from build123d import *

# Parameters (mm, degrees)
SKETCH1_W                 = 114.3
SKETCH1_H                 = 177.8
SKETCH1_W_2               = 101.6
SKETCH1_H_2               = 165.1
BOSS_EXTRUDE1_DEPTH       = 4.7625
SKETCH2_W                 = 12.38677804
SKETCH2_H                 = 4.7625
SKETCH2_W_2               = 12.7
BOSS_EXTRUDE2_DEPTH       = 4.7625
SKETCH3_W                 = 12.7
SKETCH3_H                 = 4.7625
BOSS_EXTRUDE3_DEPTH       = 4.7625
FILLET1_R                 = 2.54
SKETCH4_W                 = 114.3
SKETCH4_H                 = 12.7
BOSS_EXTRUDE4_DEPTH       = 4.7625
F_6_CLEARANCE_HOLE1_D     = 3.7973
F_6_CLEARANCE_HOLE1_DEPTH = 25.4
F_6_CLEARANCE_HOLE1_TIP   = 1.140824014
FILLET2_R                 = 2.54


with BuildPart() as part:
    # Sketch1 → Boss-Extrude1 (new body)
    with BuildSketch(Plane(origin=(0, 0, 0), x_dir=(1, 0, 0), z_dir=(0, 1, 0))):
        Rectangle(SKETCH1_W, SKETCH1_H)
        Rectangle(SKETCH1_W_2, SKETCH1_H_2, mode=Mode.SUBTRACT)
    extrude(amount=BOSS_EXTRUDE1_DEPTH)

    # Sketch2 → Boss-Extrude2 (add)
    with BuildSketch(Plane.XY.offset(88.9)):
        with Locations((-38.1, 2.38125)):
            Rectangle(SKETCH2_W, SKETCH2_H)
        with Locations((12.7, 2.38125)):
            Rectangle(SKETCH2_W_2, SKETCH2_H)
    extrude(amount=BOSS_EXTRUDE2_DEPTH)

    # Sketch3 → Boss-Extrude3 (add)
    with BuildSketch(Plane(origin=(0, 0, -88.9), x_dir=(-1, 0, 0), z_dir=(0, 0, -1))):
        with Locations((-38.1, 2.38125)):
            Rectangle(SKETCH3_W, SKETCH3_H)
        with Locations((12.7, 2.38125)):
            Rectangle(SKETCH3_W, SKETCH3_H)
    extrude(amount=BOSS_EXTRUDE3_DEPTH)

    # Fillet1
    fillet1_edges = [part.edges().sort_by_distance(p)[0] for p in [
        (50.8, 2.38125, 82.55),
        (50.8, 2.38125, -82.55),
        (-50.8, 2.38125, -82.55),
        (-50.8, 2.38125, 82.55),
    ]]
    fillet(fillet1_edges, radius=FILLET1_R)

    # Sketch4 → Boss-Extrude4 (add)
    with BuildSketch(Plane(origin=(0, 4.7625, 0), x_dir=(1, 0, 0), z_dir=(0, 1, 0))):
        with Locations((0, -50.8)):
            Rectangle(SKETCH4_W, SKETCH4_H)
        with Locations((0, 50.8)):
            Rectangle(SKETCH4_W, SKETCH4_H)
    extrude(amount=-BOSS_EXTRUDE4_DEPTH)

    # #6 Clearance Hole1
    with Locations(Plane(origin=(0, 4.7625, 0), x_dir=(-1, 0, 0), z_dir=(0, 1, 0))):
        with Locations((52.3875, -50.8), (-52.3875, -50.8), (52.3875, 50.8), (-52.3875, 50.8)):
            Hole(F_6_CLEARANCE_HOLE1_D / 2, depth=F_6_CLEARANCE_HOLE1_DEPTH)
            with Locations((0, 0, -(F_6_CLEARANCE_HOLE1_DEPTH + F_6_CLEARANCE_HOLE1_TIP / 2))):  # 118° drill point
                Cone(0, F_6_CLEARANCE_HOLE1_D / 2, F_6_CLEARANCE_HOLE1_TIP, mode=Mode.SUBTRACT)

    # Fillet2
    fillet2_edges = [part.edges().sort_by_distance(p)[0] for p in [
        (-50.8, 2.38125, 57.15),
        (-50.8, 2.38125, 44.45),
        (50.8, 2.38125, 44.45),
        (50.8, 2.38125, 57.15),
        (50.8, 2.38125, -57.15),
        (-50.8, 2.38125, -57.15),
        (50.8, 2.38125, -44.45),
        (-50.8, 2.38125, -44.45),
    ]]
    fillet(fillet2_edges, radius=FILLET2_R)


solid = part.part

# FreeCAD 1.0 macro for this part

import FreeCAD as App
import Part
import Sketcher
Q = App.Units.Quantity


def edges_at(feature, points):
    """Names of the edges that pass closest to the given points."""
    edges = feature.Shape.Edges
    near = lambda p: min(range(len(edges)), key=lambda i: edges[i].distToShape(Part.Vertex(*p))[0])
    return sorted({f"Edge{near(p) + 1}" for p in points})

doc = App.newDocument("Part")
body = doc.addObject("PartDesign::Body", "Body")

# Sketch on XZ plane
sketch1 = doc.addObject("Sketcher::SketchObject", "Sketch")
body.addObject(sketch1)
sketch1.AttachmentSupport = (doc.XZ_Plane, [""])
sketch1.MapMode = "FlatFace"
sketch1.addGeometry(Part.LineSegment(App.Vector(-57, -89, 0), App.Vector(-57, 89, 0)), False)
sketch1.addGeometry(Part.LineSegment(App.Vector(-57, 89, 0), App.Vector(57, 89, 0)), False)
sketch1.addGeometry(Part.LineSegment(App.Vector(57, 89, 0), App.Vector(57, -89, 0)), False)
sketch1.addGeometry(Part.LineSegment(App.Vector(57, -89, 0), App.Vector(-57, -89, 0)), False)
sketch1.addGeometry(Part.LineSegment(App.Vector(51, 83, 0), App.Vector(-51, 83, 0)), False)
sketch1.addGeometry(Part.LineSegment(App.Vector(-51, 83, 0), App.Vector(-51, -83, 0)), False)
sketch1.addGeometry(Part.LineSegment(App.Vector(-51, -83, 0), App.Vector(51, -83, 0)), False)
sketch1.addGeometry(Part.LineSegment(App.Vector(51, -83, 0), App.Vector(51, 83, 0)), False)
sketch1.addConstraint(Sketcher.Constraint("Coincident", 0, 2, 1, 1))
sketch1.addConstraint(Sketcher.Constraint("Coincident", 1, 2, 2, 1))
sketch1.addConstraint(Sketcher.Constraint("Coincident", 2, 2, 3, 1))
sketch1.addConstraint(Sketcher.Constraint("Coincident", 3, 2, 0, 1))
sketch1.addConstraint(Sketcher.Constraint("Coincident", 4, 2, 5, 1))
sketch1.addConstraint(Sketcher.Constraint("Coincident", 5, 2, 6, 1))
sketch1.addConstraint(Sketcher.Constraint("Coincident", 6, 2, 7, 1))
sketch1.addConstraint(Sketcher.Constraint("Coincident", 7, 2, 4, 1))
sketch1.addConstraint(Sketcher.Constraint("Vertical", 0))
sketch1.addConstraint(Sketcher.Constraint("Horizontal", 1))
sketch1.addConstraint(Sketcher.Constraint("Vertical", 2))
sketch1.addConstraint(Sketcher.Constraint("Horizontal", 3))
sketch1.addConstraint(Sketcher.Constraint("Horizontal", 4))
sketch1.addConstraint(Sketcher.Constraint("Vertical", 5))
sketch1.addConstraint(Sketcher.Constraint("Horizontal", 6))
sketch1.addConstraint(Sketcher.Constraint("Vertical", 7))
sketch1.addConstraint(Sketcher.Constraint("Symmetric", 0, 2, 2, 2, -1, 1))
sketch1.addConstraint(Sketcher.Constraint("Symmetric", 4, 2, 6, 2, -1, 1))
sketch1.addConstraint(Sketcher.Constraint("DistanceX", 4, 2, 4, 1, Q("4 in")))
sketch1.addConstraint(Sketcher.Constraint("DistanceY", 0, 1, 0, 2, Q("7 in")))
sketch1.addConstraint(Sketcher.Constraint("DistanceX", 1, 1, 1, 2, Q("4.5 in")))
sketch1.addConstraint(Sketcher.Constraint("DistanceY", 5, 2, 5, 1, Q("6.5 in")))
pad1 = doc.addObject("PartDesign::Pad", "Pad")
body.addObject(pad1)
pad1.Profile = sketch1
pad1.Length = Q("0.1875 in")
pad1.Reversed = True

# Sketch on XY plane
sketch2 = doc.addObject("Sketcher::SketchObject", "Sketch001")
body.addObject(sketch2)
sketch2.AttachmentSupport = (doc.XY_Plane, [""])
sketch2.MapMode = "FlatFace"
sketch2.AttachmentOffset = App.Placement(App.Vector(0, 0, 3.5 * 25.4), App.Rotation())
sketch2.addGeometry(Part.LineSegment(App.Vector(-44.3, 4.8, 0), App.Vector(-44.3, 0, 0)), False)
sketch2.addGeometry(Part.LineSegment(App.Vector(-44.3, 0, 0), App.Vector(-31.9, 0, 0)), False)
sketch2.addGeometry(Part.LineSegment(App.Vector(-31.9, 0, 0), App.Vector(-31.9, 4.8, 0)), False)
sketch2.addGeometry(Part.LineSegment(App.Vector(-31.9, 4.8, 0), App.Vector(-44.3, 4.8, 0)), False)
sketch2.addGeometry(Part.LineSegment(App.Vector(6.3, 4.8, 0), App.Vector(6.3, 0, 0)), False)
sketch2.addGeometry(Part.LineSegment(App.Vector(6.3, 0, 0), App.Vector(19.1, 0, 0)), False)
sketch2.addGeometry(Part.LineSegment(App.Vector(19.1, 0, 0), App.Vector(19.1, 4.8, 0)), False)
sketch2.addGeometry(Part.LineSegment(App.Vector(19.1, 4.8, 0), App.Vector(6.3, 4.8, 0)), False)
sketch2.addConstraint(Sketcher.Constraint("Coincident", 0, 2, 1, 1))
sketch2.addConstraint(Sketcher.Constraint("Coincident", 1, 2, 2, 1))
sketch2.addConstraint(Sketcher.Constraint("Coincident", 2, 2, 3, 1))
sketch2.addConstraint(Sketcher.Constraint("Coincident", 3, 2, 0, 1))
sketch2.addConstraint(Sketcher.Constraint("Coincident", 4, 2, 5, 1))
sketch2.addConstraint(Sketcher.Constraint("Coincident", 5, 2, 6, 1))
sketch2.addConstraint(Sketcher.Constraint("Coincident", 6, 2, 7, 1))
sketch2.addConstraint(Sketcher.Constraint("Coincident", 7, 2, 4, 1))
sketch2.addConstraint(Sketcher.Constraint("Vertical", 0))
sketch2.addConstraint(Sketcher.Constraint("Horizontal", 1))
sketch2.addConstraint(Sketcher.Constraint("Vertical", 2))
sketch2.addConstraint(Sketcher.Constraint("Horizontal", 3))
sketch2.addConstraint(Sketcher.Constraint("Vertical", 4))
sketch2.addConstraint(Sketcher.Constraint("Horizontal", 5))
sketch2.addConstraint(Sketcher.Constraint("Vertical", 6))
sketch2.addConstraint(Sketcher.Constraint("Horizontal", 7))
sketch2.addConstraint(Sketcher.Constraint("PointOnObject", 0, 2, -1))
sketch2.addConstraint(Sketcher.Constraint("PointOnObject", 4, 2, -1))
sketch2.addConstraint(Sketcher.Constraint("Horizontal", 3, 2, 6, 2))
sketch2.addConstraint(Sketcher.Constraint("DistanceX", 5, 1, 5, 2, Q("0.5 in")))
sketch2.addConstraint(Sketcher.Constraint("DistanceY", 0, 2, 0, 1, Q("0.1875 in")))
sketch2.addConstraint(Sketcher.Constraint("DistanceX", -1, 1, 4, 2, Q("0.25 in")))
sketch2.addConstraint(Sketcher.Constraint("DistanceX", 1, 1, 1, 2, 12.386778))
sketch2.addConstraint(Sketcher.Constraint("DistanceX", 0, 2, -1, 1, 44.293389))
pad2 = doc.addObject("PartDesign::Pad", "Pad001")
body.addObject(pad2)
pad2.Profile = sketch2
pad2.Length = Q("0.1875 in")

# Sketch on XY plane
sketch3 = doc.addObject("Sketcher::SketchObject", "Sketch002")
body.addObject(sketch3)
sketch3.AttachmentSupport = (doc.XY_Plane, [""])
sketch3.MapMode = "FlatFace"
sketch3.AttachmentOffset = App.Placement(App.Vector(0, 0, -3.5 * 25.4), App.Rotation())
sketch3.addGeometry(Part.LineSegment(App.Vector(44.5, 4.8, 0), App.Vector(44.5, 0, 0)), False)
sketch3.addGeometry(Part.LineSegment(App.Vector(44.5, 0, 0), App.Vector(31.8, 0, 0)), False)
sketch3.addGeometry(Part.LineSegment(App.Vector(31.8, 0, 0), App.Vector(31.8, 4.8, 0)), False)
sketch3.addGeometry(Part.LineSegment(App.Vector(31.8, 4.8, 0), App.Vector(44.5, 4.8, 0)), False)
sketch3.addGeometry(Part.LineSegment(App.Vector(-6.3, 4.8, 0), App.Vector(-6.3, 0, 0)), False)
sketch3.addGeometry(Part.LineSegment(App.Vector(-6.3, 0, 0), App.Vector(-19.1, 0, 0)), False)
sketch3.addGeometry(Part.LineSegment(App.Vector(-19.1, 0, 0), App.Vector(-19.1, 4.8, 0)), False)
sketch3.addGeometry(Part.LineSegment(App.Vector(-19.1, 4.8, 0), App.Vector(-6.3, 4.8, 0)), False)
sketch3.addConstraint(Sketcher.Constraint("Coincident", 0, 2, 1, 1))
sketch3.addConstraint(Sketcher.Constraint("Coincident", 1, 2, 2, 1))
sketch3.addConstraint(Sketcher.Constraint("Coincident", 2, 2, 3, 1))
sketch3.addConstraint(Sketcher.Constraint("Coincident", 3, 2, 0, 1))
sketch3.addConstraint(Sketcher.Constraint("Coincident", 4, 2, 5, 1))
sketch3.addConstraint(Sketcher.Constraint("Coincident", 5, 2, 6, 1))
sketch3.addConstraint(Sketcher.Constraint("Coincident", 6, 2, 7, 1))
sketch3.addConstraint(Sketcher.Constraint("Coincident", 7, 2, 4, 1))
sketch3.addConstraint(Sketcher.Constraint("Vertical", 0))
sketch3.addConstraint(Sketcher.Constraint("Horizontal", 1))
sketch3.addConstraint(Sketcher.Constraint("Vertical", 2))
sketch3.addConstraint(Sketcher.Constraint("Horizontal", 3))
sketch3.addConstraint(Sketcher.Constraint("Vertical", 4))
sketch3.addConstraint(Sketcher.Constraint("Horizontal", 5))
sketch3.addConstraint(Sketcher.Constraint("Vertical", 6))
sketch3.addConstraint(Sketcher.Constraint("Horizontal", 7))
sketch3.addConstraint(Sketcher.Constraint("PointOnObject", 0, 2, -1))
sketch3.addConstraint(Sketcher.Constraint("PointOnObject", 4, 2, -1))
sketch3.addConstraint(Sketcher.Constraint("Horizontal", 3, 2, 6, 2))
sketch3.addConstraint(Sketcher.Constraint("Equal", 3, 5))
sketch3.addConstraint(Sketcher.Constraint("DistanceX", 1, 2, 1, 1, Q("0.5 in")))
sketch3.addConstraint(Sketcher.Constraint("DistanceX", 4, 2, 0, 2, Q("2 in")))
sketch3.addConstraint(Sketcher.Constraint("DistanceY", 0, 2, 0, 1, Q("0.1875 in")))
sketch3.addConstraint(Sketcher.Constraint("DistanceX", -1, 1, 0, 2, Q("1.75 in")))
pad3 = doc.addObject("PartDesign::Pad", "Pad002")
body.addObject(pad3)
pad3.Profile = sketch3
pad3.Length = Q("0.1875 in")
pad3.Reversed = True
doc.recompute()

fillet = doc.addObject("PartDesign::Fillet", "Fillet")
body.addObject(fillet)
fillet.Base = (pad3, edges_at(pad3, [
    (50.8, 2.381, 82.55),
    (50.8, 2.381, -82.55),
    (-50.8, 2.381, -82.55),
    (-50.8, 2.381, 82.55),
]))
fillet.Radius = Q("0.1 in")

# Sketch on XZ plane
sketch4 = doc.addObject("Sketcher::SketchObject", "Sketch003")
body.addObject(sketch4)
sketch4.AttachmentSupport = (doc.XZ_Plane, [""])
sketch4.MapMode = "FlatFace"
sketch4.AttachmentOffset = App.Placement(App.Vector(0, 0, -0.1875 * 25.4), App.Rotation())
sketch4.addGeometry(Part.LineSegment(App.Vector(-57, 44, 0), App.Vector(-57, 57, 0)), False)
sketch4.addGeometry(Part.LineSegment(App.Vector(-57, 57, 0), App.Vector(57, 57, 0)), False)
sketch4.addGeometry(Part.LineSegment(App.Vector(57, 57, 0), App.Vector(57, 44, 0)), False)
sketch4.addGeometry(Part.LineSegment(App.Vector(57, 44, 0), App.Vector(-57, 44, 0)), False)
sketch4.addGeometry(Part.LineSegment(App.Vector(-57, -57, 0), App.Vector(-57, -44, 0)), False)
sketch4.addGeometry(Part.LineSegment(App.Vector(-57, -44, 0), App.Vector(57, -44, 0)), False)
sketch4.addGeometry(Part.LineSegment(App.Vector(57, -44, 0), App.Vector(57, -57, 0)), False)
sketch4.addGeometry(Part.LineSegment(App.Vector(57, -57, 0), App.Vector(-57, -57, 0)), False)
sketch4.addConstraint(Sketcher.Constraint("Coincident", 0, 2, 1, 1))
sketch4.addConstraint(Sketcher.Constraint("Coincident", 1, 2, 2, 1))
sketch4.addConstraint(Sketcher.Constraint("Coincident", 2, 2, 3, 1))
sketch4.addConstraint(Sketcher.Constraint("Coincident", 3, 2, 0, 1))
sketch4.addConstraint(Sketcher.Constraint("Coincident", 4, 2, 5, 1))
sketch4.addConstraint(Sketcher.Constraint("Coincident", 5, 2, 6, 1))
sketch4.addConstraint(Sketcher.Constraint("Coincident", 6, 2, 7, 1))
sketch4.addConstraint(Sketcher.Constraint("Coincident", 7, 2, 4, 1))
sketch4.addConstraint(Sketcher.Constraint("Vertical", 0))
sketch4.addConstraint(Sketcher.Constraint("Horizontal", 1))
sketch4.addConstraint(Sketcher.Constraint("Vertical", 2))
sketch4.addConstraint(Sketcher.Constraint("Horizontal", 3))
sketch4.addConstraint(Sketcher.Constraint("Vertical", 4))
sketch4.addConstraint(Sketcher.Constraint("Horizontal", 5))
sketch4.addConstraint(Sketcher.Constraint("Vertical", 6))
sketch4.addConstraint(Sketcher.Constraint("Horizontal", 7))
sketch4.addConstraint(Sketcher.Constraint("Symmetric", 2, 2, 4, 2, -1, 1))
sketch4.addConstraint(Sketcher.Constraint("Symmetric", 0, 2, 6, 2, -1, 1))
sketch4.addConstraint(Sketcher.Constraint("Vertical", 3, 2, 4, 2))
sketch4.addConstraint(Sketcher.Constraint("DistanceX", 1, 1, 1, 2, Q("4.5 in")))
sketch4.addConstraint(Sketcher.Constraint("DistanceY", 0, 1, 0, 2, Q("0.5 in")))
sketch4.addConstraint(Sketcher.Constraint("DistanceY", 4, 2, 0, 2, Q("4 in")))
pad4 = doc.addObject("PartDesign::Pad", "Pad003")
body.addObject(pad4)
pad4.Profile = sketch4
pad4.Length = Q("0.1875 in")

# Sketch on XZ plane
sketch5 = doc.addObject("Sketcher::SketchObject", "Sketch004")
body.addObject(sketch5)
sketch5.AttachmentSupport = (doc.XZ_Plane, [""])
sketch5.MapMode = "FlatFace"
sketch5.AttachmentOffset = App.Placement(App.Vector(0, 0, -0.1875 * 25.4), App.Rotation())
sketch5.addGeometry(Part.Circle(App.Vector(-52.4, -50.8, 0), App.Vector(0, 0, 1), 1.9), False)
sketch5.addGeometry(Part.Circle(App.Vector(52.4, -50.8, 0), App.Vector(0, 0, 1), 1.9), False)
sketch5.addGeometry(Part.Circle(App.Vector(-52.4, 50.8, 0), App.Vector(0, 0, 1), 1.9), False)
sketch5.addGeometry(Part.Circle(App.Vector(52.4, 50.8, 0), App.Vector(0, 0, 1), 1.9), False)
sketch5.addConstraint(Sketcher.Constraint("Equal", 0, 1))
sketch5.addConstraint(Sketcher.Constraint("Equal", 1, 2))
sketch5.addConstraint(Sketcher.Constraint("Equal", 2, 3))
sketch5.addConstraint(Sketcher.Constraint("Symmetric", 1, 3, 2, 3, -1, 1))
sketch5.addConstraint(Sketcher.Constraint("Symmetric", 0, 3, 3, 3, -1, 1))
sketch5.addConstraint(Sketcher.Constraint("Symmetric", 0, 3, 1, 3, -2))
sketch5.addConstraint(Sketcher.Constraint("DistanceY", 0, 3, -1, 1, Q("2 in")))
sketch5.addConstraint(Sketcher.Constraint("Diameter", 0, Q("0.1495 in")))
sketch5.addConstraint(Sketcher.Constraint("DistanceX", 0, 3, -1, 1, Q("2.0625 in")))
doc.recompute()
hole = doc.addObject("PartDesign::Hole", "Hole")
body.addObject(hole)
hole.Profile = sketch5
hole.ThreadType = "None"
hole.Diameter = Q("0.1495 in")
hole.DepthType = "Dimension"
hole.Depth = Q("1 in")
hole.DrillPoint = "Angled"
hole.DrillPointAngle = 118
hole.Reversed = True
doc.recompute()

fillet2 = doc.addObject("PartDesign::Fillet", "Fillet001")
body.addObject(fillet2)
fillet2.Base = (hole, edges_at(hole, [
    (-50.8, 2.381, 57.15),
    (-50.8, 2.381, 44.45),
    (50.8, 2.381, 44.45),
    (50.8, 2.381, 57.15),
    (50.8, 2.381, -57.15),
    (-50.8, 2.381, -57.15),
    (50.8, 2.381, -44.45),
    (-50.8, 2.381, -44.45),
]))
fillet2.Radius = Q("0.1 in")

doc.recompute()
